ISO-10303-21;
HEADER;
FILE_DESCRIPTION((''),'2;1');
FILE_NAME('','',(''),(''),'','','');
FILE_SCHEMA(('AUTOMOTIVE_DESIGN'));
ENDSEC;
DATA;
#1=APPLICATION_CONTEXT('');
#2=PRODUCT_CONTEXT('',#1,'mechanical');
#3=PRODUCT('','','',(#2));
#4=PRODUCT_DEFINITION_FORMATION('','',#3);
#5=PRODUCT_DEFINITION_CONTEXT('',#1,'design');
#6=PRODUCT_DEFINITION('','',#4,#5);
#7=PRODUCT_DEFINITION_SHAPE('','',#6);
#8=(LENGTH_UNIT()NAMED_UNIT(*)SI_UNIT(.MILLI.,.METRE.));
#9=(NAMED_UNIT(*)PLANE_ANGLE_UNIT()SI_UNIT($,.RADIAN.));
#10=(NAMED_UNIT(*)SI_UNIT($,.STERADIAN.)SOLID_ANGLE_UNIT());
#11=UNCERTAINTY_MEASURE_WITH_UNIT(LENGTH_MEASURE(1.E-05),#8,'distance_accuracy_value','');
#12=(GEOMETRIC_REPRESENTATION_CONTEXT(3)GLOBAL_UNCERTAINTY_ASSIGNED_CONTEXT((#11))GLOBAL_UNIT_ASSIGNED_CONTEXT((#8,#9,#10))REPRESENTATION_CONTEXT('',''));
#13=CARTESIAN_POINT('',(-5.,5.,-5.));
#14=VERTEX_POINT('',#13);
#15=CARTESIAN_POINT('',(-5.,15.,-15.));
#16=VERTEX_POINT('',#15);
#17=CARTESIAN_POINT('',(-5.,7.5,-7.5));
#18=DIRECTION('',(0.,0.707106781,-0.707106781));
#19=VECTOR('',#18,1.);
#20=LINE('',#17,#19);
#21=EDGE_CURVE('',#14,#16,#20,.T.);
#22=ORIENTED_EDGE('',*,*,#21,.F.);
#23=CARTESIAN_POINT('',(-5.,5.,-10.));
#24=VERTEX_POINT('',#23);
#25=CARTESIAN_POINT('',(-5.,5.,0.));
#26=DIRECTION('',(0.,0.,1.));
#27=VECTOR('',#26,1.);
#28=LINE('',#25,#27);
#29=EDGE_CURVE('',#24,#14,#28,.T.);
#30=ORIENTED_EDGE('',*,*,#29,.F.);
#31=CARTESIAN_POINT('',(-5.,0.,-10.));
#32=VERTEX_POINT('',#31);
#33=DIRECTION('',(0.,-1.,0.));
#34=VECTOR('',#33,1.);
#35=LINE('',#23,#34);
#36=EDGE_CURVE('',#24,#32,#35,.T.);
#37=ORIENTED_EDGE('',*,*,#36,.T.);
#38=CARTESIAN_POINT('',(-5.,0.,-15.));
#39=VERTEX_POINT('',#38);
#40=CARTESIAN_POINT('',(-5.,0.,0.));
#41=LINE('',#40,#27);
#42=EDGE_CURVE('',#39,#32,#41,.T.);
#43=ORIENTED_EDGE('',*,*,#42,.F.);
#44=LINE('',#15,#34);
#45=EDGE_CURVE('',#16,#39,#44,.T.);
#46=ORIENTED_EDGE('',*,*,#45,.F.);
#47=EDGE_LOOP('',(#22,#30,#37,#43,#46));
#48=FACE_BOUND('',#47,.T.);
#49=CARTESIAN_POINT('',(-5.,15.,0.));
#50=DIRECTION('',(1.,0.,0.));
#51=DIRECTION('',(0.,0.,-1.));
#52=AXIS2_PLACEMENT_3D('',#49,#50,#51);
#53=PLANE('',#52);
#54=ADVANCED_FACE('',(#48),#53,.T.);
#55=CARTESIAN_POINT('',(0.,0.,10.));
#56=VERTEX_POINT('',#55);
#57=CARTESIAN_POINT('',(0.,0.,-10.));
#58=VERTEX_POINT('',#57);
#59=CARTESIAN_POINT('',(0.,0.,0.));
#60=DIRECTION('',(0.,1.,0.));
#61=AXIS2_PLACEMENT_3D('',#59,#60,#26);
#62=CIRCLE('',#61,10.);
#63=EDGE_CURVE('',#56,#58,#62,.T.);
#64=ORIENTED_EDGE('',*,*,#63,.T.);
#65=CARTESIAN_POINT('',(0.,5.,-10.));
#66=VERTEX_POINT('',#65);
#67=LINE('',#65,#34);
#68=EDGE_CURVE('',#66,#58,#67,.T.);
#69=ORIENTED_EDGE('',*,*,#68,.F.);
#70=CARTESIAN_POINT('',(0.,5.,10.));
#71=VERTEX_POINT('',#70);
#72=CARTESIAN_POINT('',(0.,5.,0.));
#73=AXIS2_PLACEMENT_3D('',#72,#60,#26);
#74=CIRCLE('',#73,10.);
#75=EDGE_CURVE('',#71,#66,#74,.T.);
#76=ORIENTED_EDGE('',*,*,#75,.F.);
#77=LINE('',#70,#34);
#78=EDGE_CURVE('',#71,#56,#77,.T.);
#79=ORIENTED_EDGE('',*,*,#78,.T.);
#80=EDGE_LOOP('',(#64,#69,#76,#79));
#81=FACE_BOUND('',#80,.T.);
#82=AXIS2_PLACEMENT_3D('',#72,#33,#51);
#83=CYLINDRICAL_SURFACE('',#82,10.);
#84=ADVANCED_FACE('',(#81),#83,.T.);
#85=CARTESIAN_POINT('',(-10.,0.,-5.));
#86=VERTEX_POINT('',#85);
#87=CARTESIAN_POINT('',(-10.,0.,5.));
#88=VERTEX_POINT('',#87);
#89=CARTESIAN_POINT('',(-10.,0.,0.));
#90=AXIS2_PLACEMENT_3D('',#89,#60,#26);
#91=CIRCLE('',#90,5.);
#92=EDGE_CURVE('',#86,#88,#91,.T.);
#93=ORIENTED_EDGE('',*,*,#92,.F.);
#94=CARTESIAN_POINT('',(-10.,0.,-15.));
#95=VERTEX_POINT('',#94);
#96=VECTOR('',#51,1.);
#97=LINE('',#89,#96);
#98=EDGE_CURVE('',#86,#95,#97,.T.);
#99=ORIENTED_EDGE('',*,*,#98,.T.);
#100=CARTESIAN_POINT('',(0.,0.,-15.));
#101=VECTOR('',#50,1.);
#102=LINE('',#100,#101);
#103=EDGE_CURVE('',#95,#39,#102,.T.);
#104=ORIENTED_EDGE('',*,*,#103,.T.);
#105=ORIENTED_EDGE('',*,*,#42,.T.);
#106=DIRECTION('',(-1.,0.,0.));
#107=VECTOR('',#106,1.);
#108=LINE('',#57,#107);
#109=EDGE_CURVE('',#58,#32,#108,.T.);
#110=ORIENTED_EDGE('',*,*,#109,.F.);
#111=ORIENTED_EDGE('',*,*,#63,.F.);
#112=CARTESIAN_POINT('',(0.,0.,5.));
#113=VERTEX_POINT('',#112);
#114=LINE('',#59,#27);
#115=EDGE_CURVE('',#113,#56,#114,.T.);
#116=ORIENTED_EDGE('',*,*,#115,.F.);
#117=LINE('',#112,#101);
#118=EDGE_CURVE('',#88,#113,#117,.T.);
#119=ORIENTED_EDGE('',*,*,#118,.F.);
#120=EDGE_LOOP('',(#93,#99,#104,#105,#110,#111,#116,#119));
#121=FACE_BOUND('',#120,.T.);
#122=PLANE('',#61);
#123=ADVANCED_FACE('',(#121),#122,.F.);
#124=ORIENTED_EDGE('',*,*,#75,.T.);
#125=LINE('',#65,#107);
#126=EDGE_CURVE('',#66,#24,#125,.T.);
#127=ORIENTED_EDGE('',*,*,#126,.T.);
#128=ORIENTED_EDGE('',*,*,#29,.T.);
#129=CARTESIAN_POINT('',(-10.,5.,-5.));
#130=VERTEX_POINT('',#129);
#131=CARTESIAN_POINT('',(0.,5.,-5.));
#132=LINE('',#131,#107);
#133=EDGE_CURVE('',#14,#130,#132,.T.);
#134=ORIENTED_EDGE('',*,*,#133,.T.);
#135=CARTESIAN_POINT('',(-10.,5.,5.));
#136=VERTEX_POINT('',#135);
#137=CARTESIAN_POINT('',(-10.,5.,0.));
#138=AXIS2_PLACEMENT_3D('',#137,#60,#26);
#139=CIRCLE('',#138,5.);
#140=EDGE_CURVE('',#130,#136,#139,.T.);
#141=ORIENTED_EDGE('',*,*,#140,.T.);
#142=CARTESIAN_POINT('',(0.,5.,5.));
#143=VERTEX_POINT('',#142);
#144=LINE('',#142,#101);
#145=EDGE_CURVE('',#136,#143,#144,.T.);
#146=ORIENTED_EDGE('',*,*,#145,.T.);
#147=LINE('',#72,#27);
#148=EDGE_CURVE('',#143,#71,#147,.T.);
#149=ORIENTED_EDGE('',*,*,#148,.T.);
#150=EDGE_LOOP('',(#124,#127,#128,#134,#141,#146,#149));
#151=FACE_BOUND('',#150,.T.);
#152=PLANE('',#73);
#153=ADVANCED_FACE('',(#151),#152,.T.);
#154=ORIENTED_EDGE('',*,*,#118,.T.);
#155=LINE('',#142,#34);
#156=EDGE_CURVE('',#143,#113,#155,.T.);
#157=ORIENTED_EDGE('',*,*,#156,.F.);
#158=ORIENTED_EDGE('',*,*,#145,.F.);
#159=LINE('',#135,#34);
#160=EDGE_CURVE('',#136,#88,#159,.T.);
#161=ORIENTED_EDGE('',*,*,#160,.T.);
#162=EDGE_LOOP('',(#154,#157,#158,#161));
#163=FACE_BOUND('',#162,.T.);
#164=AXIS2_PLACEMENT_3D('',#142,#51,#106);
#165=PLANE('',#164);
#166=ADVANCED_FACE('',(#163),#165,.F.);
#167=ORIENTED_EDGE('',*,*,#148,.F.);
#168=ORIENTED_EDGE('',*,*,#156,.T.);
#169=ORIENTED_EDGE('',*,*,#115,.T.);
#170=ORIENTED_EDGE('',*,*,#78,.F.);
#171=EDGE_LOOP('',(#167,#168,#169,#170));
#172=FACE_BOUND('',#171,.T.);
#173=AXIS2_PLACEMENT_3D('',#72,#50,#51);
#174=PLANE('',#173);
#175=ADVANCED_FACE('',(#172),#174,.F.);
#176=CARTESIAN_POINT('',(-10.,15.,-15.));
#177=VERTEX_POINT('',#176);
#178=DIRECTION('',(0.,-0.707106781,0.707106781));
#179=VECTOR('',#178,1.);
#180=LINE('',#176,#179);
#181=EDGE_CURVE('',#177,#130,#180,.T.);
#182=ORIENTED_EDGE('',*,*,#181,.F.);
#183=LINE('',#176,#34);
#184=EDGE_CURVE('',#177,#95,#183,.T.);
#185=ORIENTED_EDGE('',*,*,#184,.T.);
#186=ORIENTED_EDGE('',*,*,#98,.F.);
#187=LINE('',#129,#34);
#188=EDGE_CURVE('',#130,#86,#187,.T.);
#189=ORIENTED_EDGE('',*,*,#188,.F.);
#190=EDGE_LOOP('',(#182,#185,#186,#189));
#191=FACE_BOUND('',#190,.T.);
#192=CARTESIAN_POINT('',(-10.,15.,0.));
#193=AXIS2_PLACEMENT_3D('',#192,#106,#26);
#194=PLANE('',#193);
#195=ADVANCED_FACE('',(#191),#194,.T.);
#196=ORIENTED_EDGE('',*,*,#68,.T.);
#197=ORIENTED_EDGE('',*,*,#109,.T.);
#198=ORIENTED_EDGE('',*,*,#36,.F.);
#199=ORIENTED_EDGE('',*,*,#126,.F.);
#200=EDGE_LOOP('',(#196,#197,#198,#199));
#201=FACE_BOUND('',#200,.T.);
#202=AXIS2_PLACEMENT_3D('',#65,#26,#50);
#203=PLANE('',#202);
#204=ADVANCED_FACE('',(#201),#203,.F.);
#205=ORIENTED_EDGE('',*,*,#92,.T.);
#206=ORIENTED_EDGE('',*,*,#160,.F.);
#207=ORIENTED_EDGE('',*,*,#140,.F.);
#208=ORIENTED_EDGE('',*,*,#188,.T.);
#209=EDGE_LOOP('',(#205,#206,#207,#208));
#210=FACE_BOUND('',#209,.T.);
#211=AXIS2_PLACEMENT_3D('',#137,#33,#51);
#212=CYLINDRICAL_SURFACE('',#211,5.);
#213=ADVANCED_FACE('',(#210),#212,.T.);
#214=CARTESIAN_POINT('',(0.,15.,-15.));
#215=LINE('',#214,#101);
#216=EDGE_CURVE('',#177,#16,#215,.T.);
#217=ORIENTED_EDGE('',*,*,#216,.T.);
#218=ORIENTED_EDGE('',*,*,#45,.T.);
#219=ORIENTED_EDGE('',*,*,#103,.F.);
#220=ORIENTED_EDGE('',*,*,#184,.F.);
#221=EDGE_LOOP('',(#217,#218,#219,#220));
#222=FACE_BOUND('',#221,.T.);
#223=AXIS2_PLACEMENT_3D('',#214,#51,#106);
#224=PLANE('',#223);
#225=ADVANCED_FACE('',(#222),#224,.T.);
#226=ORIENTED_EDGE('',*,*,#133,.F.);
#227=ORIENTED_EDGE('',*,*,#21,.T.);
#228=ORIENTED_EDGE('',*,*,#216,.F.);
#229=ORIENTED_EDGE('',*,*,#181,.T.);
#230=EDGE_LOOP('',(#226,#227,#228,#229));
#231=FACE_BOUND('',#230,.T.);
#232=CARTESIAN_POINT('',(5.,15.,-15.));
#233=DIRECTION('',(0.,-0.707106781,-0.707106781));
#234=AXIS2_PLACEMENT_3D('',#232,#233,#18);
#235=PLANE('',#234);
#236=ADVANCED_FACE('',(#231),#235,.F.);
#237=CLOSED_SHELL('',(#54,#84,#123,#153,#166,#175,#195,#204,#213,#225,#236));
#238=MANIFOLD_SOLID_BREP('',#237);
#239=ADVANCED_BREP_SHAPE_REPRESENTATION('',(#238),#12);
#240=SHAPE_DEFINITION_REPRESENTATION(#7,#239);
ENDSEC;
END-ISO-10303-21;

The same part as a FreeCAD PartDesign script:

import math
import FreeCAD as App
import Part
import Sketcher
from FreeCAD import Vector


def add_polygon(sketch, points):
    """Adds a closed chain of lines whose ends are joined by coincident constraints."""
    first, n = sketch.GeometryCount, len(points)
    for a, b in zip(points, points[1:] + points[:1]):
        sketch.addGeometry(Part.LineSegment(App.Vector(*a, 0), App.Vector(*b, 0)), False)
    for i in range(n):
        sketch.addConstraint(Sketcher.Constraint("Coincident", first + i, 2, first + (i + 1) % n, 1))

doc = App.newDocument("Part")
params = doc.addObject("Spreadsheet::Sheet", "Params")
for row, (alias, value) in enumerate([
    ("sketch1_radius", "5 mm"),
    ("sketch1_radius2", "10 mm"),
    ("pad1_length", "5 mm"),
    ("sketch2_width", "5 mm"),
    ("sketch2_height", "10 mm"),
    ("pad2_length", "15 mm"),
    ("sketch3_width", "10 mm"),
    ("pocket1_length", "15 mm"),
], start=1):
    params.set(f"A{row}", alias)
    params.set(f"B{row}", "=" + value)
    params.setAlias(f"B{row}", alias)

body = doc.addObject("PartDesign::Body", "Body")

# Sketch on XZ plane
sketch1 = body.newObject("Sketcher::SketchObject", "Sketch")
sketch1.AttachmentSupport = (doc.getObject("XZ_Plane"), [""])
sketch1.MapMode = "FlatFace"
sketch1.addGeometry([
    Part.ArcOfCircle(Part.Circle(Vector(-10, 0, 0), Vector(0, 0, 1), 5), math.radians(90), math.radians(270)),  # 0
    Part.LineSegment(Vector(-10, 5, 0), Vector(0, 5, 0)),  # 1
    Part.LineSegment(Vector(0, 5, 0), Vector(0, 10, 0)),  # 2
    Part.ArcOfCircle(Part.Circle(Vector(0, 0, 0), Vector(0, 0, 1), 10), math.radians(-90), math.radians(90)),  # 3
    Part.LineSegment(Vector(0, -10, 0), Vector(-5, -10, 0)),  # 4
    Part.LineSegment(Vector(-5, -10, 0), Vector(-5, -5, 0)),  # 5
    Part.LineSegment(Vector(-5, -5, 0), Vector(-10, -5, 0)),  # 6
], False)
sketch1.addConstraint([
    Sketcher.Constraint("Tangent", 0, 1, 1, 1),
    Sketcher.Constraint("Coincident", 1, 2, 2, 1),
    Sketcher.Constraint("Coincident", 2, 2, 3, 2),
    Sketcher.Constraint("Tangent", 3, 1, 4, 1),
    Sketcher.Constraint("Coincident", 4, 2, 5, 1),
    Sketcher.Constraint("Coincident", 5, 2, 6, 1),
    Sketcher.Constraint("Tangent", 6, 2, 0, 2),
    Sketcher.Constraint("Horizontal", 1),
    Sketcher.Constraint("Vertical", 2),
    Sketcher.Constraint("Horizontal", 4),
    Sketcher.Constraint("Vertical", 5),
    Sketcher.Constraint("Horizontal", 6),
    Sketcher.Constraint("Coincident", 3, 3, -1, 1),
    Sketcher.Constraint("PointOnObject", 0, 3, -1),
    Sketcher.Constraint("PointOnObject", 1, 2, -2),
    Sketcher.Constraint("Equal", 4, 6),
    Sketcher.Constraint("Equal", 6, 2),
    Sketcher.Constraint("Radius", 0, 5.0),
    Sketcher.Constraint("Radius", 3, 10.0),
])
sketch1.setExpression("Constraints[17]", "Params.sketch1_radius")
sketch1.setExpression("Constraints[18]", "Params.sketch1_radius2")
pad1 = body.newObject("PartDesign::Pad", "Pad")
pad1.Profile = sketch1
pad1.setExpression("Length", "Params.pad1_length")
pad1.Reversed = True

# Sketch on XZ plane
sketch2 = body.newObject("Sketcher::SketchObject", "Sketch001")
sketch2.AttachmentSupport = (doc.getObject("XZ_Plane"), [""])
sketch2.MapMode = "FlatFace"
add_polygon(sketch2, [(-10, -15), (-10, -5), (-5, -5), (-5, -15)])  # lines 0-3
sketch2.addConstraint([
    Sketcher.Constraint("Vertical", 0),
    Sketcher.Constraint("Horizontal", 1),
    Sketcher.Constraint("Vertical", 2),
    Sketcher.Constraint("Horizontal", 3),
    Sketcher.Constraint("DistanceX", 1, 1, 1, 2, 5.0),
    Sketcher.Constraint("DistanceY", 0, 1, 0, 2, 10.0),
    Sketcher.Constraint("DistanceX", 0, 2, -1, 1, 10.0),
    Sketcher.Constraint("DistanceY", 0, 2, -1, 1, 5.0),
])
sketch2.setExpression("Constraints[8]", "Params.sketch2_width")
sketch2.setExpression("Constraints[9]", "Params.sketch2_height")
pad2 = body.newObject("PartDesign::Pad", "Pad001")
pad2.Profile = sketch2
pad2.setExpression("Length", "Params.pad2_length")
pad2.Reversed = True

# Sketch on YZ plane
sketch3 = body.newObject("Sketcher::SketchObject", "Sketch002")
sketch3.AttachmentSupport = (doc.getObject("YZ_Plane"), [""])
sketch3.MapMode = "FlatFace"
sketch3.AttachmentOffset = App.Placement(Vector(0, 0, -10), App.Rotation())
add_polygon(sketch3, [(15, -15), (5, -5), (15, -5)])  # lines 0-2
sketch3.addConstraint([
    Sketcher.Constraint("Horizontal", 1),
    Sketcher.Constraint("Vertical", 2),
    Sketcher.Constraint("Equal", 1, 2),
    Sketcher.Constraint("DistanceX", 1, 1, 1, 2, 10.0),
    Sketcher.Constraint("DistanceX", -1, 1, 0, 2, 5.0),
    Sketcher.Constraint("DistanceY", 0, 2, -1, 1, 5.0),
])
sketch3.setExpression("Constraints[6]", "Params.sketch3_width")
pocket1 = body.newObject("PartDesign::Pocket", "Pocket")
pocket1.Profile = sketch3
pocket1.setExpression("Length", "Params.pocket1_length")
pocket1.Reversed = True

doc.recompute()
